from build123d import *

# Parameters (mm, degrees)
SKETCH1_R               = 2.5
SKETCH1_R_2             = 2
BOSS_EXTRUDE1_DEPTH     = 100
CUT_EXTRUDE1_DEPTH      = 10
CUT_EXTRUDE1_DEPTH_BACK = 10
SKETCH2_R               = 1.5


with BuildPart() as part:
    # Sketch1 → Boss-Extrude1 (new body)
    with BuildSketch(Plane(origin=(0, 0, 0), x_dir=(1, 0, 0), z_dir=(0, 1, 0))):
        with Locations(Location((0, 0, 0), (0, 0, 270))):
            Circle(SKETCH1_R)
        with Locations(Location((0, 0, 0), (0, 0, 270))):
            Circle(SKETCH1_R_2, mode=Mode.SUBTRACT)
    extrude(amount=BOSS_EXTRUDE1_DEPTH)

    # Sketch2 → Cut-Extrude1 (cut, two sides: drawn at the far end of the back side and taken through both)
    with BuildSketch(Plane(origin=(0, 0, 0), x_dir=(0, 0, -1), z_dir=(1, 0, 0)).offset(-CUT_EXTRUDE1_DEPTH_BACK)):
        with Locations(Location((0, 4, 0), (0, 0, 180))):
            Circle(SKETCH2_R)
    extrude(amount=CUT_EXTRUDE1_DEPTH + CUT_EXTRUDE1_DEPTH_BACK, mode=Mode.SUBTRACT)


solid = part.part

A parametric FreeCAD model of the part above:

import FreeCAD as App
import Part
import Sketcher

V = App.Vector

doc = App.newDocument("Part")
body = doc.addObject("PartDesign::Body", "Body")

# Sketch on XZ plane
sketch1 = doc.addObject("Sketcher::SketchObject", "Sketch")
body.addObject(sketch1)
sketch1.AttachmentSupport = (doc.XZ_Plane, [""])
sketch1.MapMode = "FlatFace"
sketch1.addGeometry([
    Part.Circle(V(0, 0, 0), V(0, 0, 1), 2.5),
    Part.Circle(V(0, 0, 0), V(0, 0, 1), 2),
], False)
sketch1.addConstraint([
    Sketcher.Constraint("Coincident", 0, 3, -1, 1),
    Sketcher.Constraint("Coincident", 1, 3, -1, 1),
    Sketcher.Constraint("Diameter", 0, 5.0),
    Sketcher.Constraint("Diameter", 1, 4.0),
])
pad1 = doc.addObject("PartDesign::Pad", "Pad")
body.addObject(pad1)
pad1.Profile = sketch1
pad1.Length = 100
pad1.Reversed = True

# Sketch on YZ plane
sketch2 = doc.addObject("Sketcher::SketchObject", "Sketch001")
body.addObject(sketch2)
sketch2.AttachmentSupport = (doc.YZ_Plane, [""])
sketch2.MapMode = "FlatFace"
sketch2.addGeometry(Part.Circle(V(4, 0, 0), V(0, 0, 1), 1.5), False)
sketch2.addConstraint([
    Sketcher.Constraint("PointOnObject", 0, 3, -1),
    Sketcher.Constraint("Diameter", 0, 3.0),
    Sketcher.Constraint("DistanceX", -1, 1, 0, 3, 4.0),
])
pocket1 = doc.addObject("PartDesign::Pocket", "Pocket")
body.addObject(pocket1)
pocket1.Profile = sketch2
pocket1.Type = "ThroughAll"
pocket1.Midplane = True

doc.recompute()
